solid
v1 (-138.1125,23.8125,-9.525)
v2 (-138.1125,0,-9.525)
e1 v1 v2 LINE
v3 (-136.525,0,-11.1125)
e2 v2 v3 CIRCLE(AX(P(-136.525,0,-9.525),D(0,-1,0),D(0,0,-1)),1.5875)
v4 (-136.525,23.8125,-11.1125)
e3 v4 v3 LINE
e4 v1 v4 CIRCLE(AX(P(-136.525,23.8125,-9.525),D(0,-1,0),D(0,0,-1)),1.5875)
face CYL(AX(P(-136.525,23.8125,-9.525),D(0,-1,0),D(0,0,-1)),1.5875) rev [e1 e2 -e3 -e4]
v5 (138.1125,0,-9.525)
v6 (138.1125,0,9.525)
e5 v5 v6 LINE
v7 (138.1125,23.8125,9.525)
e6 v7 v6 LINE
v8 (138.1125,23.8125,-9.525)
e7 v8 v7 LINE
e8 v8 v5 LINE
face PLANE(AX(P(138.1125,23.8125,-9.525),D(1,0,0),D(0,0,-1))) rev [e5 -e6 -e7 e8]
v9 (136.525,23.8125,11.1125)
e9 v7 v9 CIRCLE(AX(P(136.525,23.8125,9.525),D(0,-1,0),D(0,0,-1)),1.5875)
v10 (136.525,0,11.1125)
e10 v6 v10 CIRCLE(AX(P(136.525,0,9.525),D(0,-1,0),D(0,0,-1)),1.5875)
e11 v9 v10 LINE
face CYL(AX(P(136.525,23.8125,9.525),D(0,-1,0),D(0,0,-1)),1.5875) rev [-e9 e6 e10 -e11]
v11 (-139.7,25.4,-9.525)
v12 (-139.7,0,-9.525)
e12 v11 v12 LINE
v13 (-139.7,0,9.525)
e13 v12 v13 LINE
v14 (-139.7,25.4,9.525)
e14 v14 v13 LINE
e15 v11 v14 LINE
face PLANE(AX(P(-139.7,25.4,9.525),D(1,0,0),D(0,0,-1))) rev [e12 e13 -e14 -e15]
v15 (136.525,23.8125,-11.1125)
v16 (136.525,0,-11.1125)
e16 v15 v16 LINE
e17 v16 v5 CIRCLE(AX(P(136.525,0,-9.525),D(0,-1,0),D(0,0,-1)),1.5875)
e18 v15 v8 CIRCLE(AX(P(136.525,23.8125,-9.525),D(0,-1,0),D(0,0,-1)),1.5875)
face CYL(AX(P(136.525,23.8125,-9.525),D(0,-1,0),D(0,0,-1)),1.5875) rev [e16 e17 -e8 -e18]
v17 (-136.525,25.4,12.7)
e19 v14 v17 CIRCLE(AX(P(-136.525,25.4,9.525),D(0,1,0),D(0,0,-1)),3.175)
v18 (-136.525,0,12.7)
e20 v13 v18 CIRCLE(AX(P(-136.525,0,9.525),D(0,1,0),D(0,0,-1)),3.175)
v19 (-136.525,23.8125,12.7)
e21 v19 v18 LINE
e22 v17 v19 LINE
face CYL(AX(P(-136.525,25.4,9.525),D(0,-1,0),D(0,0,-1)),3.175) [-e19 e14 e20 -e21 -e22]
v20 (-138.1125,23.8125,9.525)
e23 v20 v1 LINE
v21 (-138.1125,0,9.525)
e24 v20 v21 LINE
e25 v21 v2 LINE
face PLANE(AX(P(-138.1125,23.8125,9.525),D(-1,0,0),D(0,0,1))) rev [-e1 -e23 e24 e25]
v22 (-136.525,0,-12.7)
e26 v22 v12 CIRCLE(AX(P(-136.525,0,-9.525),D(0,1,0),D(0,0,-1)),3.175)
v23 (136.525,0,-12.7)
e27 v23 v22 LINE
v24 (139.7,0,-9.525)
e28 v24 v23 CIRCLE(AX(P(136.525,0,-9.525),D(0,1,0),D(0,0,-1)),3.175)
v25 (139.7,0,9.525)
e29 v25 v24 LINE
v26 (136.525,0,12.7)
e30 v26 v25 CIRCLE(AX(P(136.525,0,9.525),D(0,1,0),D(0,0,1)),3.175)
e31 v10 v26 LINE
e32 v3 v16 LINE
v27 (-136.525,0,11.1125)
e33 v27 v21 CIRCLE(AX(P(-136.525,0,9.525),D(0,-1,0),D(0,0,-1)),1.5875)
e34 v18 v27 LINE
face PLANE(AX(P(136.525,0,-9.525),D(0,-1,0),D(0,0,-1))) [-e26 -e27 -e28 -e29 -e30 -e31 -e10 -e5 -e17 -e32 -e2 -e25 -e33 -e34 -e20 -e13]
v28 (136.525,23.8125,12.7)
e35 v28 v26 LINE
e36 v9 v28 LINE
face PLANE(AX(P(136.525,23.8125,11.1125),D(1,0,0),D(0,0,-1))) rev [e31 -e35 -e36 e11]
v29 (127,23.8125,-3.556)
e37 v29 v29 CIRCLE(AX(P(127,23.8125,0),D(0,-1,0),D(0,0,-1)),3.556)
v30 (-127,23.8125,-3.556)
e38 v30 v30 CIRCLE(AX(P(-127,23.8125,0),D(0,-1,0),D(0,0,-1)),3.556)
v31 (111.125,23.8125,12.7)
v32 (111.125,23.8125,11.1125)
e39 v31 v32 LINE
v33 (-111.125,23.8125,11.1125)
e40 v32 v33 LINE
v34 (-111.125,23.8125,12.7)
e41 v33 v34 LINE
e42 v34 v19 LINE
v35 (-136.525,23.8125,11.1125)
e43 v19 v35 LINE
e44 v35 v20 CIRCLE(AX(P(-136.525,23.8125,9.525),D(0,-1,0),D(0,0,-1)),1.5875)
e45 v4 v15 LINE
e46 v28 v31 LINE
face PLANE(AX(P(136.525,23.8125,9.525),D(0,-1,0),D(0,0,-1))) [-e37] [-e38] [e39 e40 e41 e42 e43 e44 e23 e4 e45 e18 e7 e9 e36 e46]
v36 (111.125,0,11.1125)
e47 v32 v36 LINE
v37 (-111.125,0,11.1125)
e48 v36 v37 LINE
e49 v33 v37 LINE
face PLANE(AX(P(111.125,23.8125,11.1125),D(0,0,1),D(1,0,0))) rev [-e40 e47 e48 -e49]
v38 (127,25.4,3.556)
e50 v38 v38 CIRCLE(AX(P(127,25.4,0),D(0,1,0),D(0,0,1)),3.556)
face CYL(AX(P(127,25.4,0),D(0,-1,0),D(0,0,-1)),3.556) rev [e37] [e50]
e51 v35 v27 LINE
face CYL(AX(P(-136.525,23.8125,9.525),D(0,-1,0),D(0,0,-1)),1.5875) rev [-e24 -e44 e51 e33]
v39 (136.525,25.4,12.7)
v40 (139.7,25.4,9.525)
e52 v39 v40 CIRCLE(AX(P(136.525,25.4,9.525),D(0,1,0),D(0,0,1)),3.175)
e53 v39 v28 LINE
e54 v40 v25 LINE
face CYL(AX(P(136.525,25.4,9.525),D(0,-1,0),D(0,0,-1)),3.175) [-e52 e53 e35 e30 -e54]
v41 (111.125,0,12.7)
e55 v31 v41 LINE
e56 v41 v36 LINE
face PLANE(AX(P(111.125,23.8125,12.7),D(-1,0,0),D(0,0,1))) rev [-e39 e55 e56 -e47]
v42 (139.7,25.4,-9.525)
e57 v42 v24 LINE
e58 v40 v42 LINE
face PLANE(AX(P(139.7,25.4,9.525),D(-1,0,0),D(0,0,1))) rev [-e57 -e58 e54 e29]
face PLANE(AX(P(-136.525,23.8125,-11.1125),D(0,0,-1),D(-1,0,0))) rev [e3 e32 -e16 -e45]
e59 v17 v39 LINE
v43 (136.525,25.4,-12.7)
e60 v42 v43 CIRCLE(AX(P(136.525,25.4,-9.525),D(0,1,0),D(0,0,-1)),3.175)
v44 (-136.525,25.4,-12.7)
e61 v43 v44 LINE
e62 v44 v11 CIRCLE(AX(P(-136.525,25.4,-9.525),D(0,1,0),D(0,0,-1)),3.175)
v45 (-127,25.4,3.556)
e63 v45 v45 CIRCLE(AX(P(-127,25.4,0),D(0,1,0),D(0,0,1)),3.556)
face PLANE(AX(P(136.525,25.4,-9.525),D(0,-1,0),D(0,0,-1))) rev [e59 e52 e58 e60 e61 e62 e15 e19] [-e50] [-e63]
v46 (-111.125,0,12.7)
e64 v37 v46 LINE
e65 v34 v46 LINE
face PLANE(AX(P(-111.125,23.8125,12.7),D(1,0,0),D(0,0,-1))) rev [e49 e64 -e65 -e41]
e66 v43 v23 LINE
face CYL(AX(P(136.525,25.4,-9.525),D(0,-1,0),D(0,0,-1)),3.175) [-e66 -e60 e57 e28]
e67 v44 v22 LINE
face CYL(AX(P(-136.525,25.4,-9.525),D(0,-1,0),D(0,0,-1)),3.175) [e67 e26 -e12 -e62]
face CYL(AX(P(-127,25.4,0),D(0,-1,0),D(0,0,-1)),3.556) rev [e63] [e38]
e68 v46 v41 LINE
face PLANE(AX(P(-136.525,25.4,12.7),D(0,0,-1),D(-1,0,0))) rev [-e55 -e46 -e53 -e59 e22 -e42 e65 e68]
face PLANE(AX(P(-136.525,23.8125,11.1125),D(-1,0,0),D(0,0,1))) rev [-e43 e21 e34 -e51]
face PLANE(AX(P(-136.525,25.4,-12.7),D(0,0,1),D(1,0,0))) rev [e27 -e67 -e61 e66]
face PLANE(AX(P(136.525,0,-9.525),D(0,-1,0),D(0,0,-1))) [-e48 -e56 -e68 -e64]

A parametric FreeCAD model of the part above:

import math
import FreeCAD as App
import Part
import Sketcher

V = App.Vector
Q = App.Units.Quantity

doc = App.newDocument("Part")
body = doc.addObject("PartDesign::Body", "Body")

# Sketch on XZ plane
sketch1 = body.newObject("Sketcher::SketchObject", "Sketch")
sketch1.AttachmentSupport = (doc.getObject("XZ_Plane"), [""])
sketch1.MapMode = "FlatFace"
sketch1.addGeometry([
    Part.LineSegment(V(-136.525, 12.7, 0), V(136.525, 12.7, 0)),  # 0
    Part.ArcOfCircle(Part.Circle(V(136.525, 9.525, 0), V(0, 0, 1), 3.175), math.radians(0), math.radians(90)),  # 1
    Part.LineSegment(V(139.7, 9.525, 0), V(139.7, -9.525, 0)),  # 2
    Part.ArcOfCircle(Part.Circle(V(136.525, -9.525, 0), V(0, 0, 1), 3.175), math.radians(-90), math.radians(0)),  # 3
    Part.LineSegment(V(136.525, -12.7, 0), V(-136.525, -12.7, 0)),  # 4
    Part.ArcOfCircle(Part.Circle(V(-136.525, -9.525, 0), V(0, 0, 1), 3.175), math.radians(-180), math.radians(-90)),  # 5
    Part.LineSegment(V(-139.7, -9.525, 0), V(-139.7, 9.525, 0)),  # 6
    Part.ArcOfCircle(Part.Circle(V(-136.525, 9.525, 0), V(0, 0, 1), 3.175), math.radians(90), math.radians(180)),  # 7
    Part.Circle(V(-127, 0, 0), V(0, 0, 1), 3.556),  # 8
    Part.Circle(V(127, 0, 0), V(0, 0, 1), 3.556),  # 9
], False)
sketch1.addConstraint([
    Sketcher.Constraint("Tangent", 0, 2, 1, 2),
    Sketcher.Constraint("Tangent", 1, 1, 2, 1),
    Sketcher.Constraint("Tangent", 2, 2, 3, 2),
    Sketcher.Constraint("Tangent", 3, 1, 4, 1),
    Sketcher.Constraint("Tangent", 4, 2, 5, 2),
    Sketcher.Constraint("Tangent", 5, 1, 6, 1),
    Sketcher.Constraint("Tangent", 6, 2, 7, 2),
    Sketcher.Constraint("Tangent", 7, 1, 0, 1),
    Sketcher.Constraint("Horizontal", 0),
    Sketcher.Constraint("Vertical", 2),
    Sketcher.Constraint("Horizontal", 4),
    Sketcher.Constraint("Vertical", 6),
    Sketcher.Constraint("Equal", 1, 3),
    Sketcher.Constraint("Equal", 3, 5),
    Sketcher.Constraint("Equal", 5, 7),
    Sketcher.Constraint("Equal", 8, 9),
    Sketcher.Constraint("Symmetric", 1, 3, 5, 3, -1, 1),
    Sketcher.Constraint("Symmetric", 8, 3, 9, 3, -1, 1),
    Sketcher.Constraint("PointOnObject", 8, 3, -1),
    Sketcher.Constraint("Diameter", 8, Q("0.28 in")),
    Sketcher.Constraint("DistanceX", 8, 3, -1, 1, Q("5 in")),
    Sketcher.Constraint("Radius", 1, Q("0.125 in")),
    Sketcher.Constraint("DistanceX", 0, 1, 0, 2, Q("10.75 in")),
    Sketcher.Constraint("DistanceY", 2, 2, 2, 1, Q("0.75 in")),
])
pad1 = body.newObject("PartDesign::Pad", "Pad")
pad1.Profile = sketch1
pad1.Length = Q("1 in")
pad1.Reversed = True

# Sketch on XZ plane
sketch2 = body.newObject("Sketcher::SketchObject", "Sketch001")
sketch2.AttachmentSupport = (doc.getObject("XZ_Plane"), [""])
sketch2.MapMode = "FlatFace"
sketch2.addGeometry([
    Part.LineSegment(V(-136.525, 12.7, 0), V(-136.525, 11.1125, 0)),  # 0
    Part.ArcOfCircle(Part.Circle(V(-136.525, 9.525, 0), V(0, 0, 1), 1.5875), math.radians(90), math.radians(180)),  # 1
    Part.LineSegment(V(-138.1125, 9.525, 0), V(-138.1125, -9.525, 0)),  # 2
    Part.ArcOfCircle(Part.Circle(V(-136.525, -9.525, 0), V(0, 0, 1), 1.5875), math.radians(180), math.radians(270)),  # 3
    Part.LineSegment(V(-136.525, -11.1125, 0), V(136.525, -11.1125, 0)),  # 4
    Part.ArcOfCircle(Part.Circle(V(136.525, -9.525, 0), V(0, 0, 1), 1.5875), math.radians(-90), math.radians(0)),  # 5
    Part.LineSegment(V(138.1125, -9.525, 0), V(138.1125, 9.525, 0)),  # 6
    Part.ArcOfCircle(Part.Circle(V(136.525, 9.525, 0), V(0, 0, 1), 1.5875), math.radians(0), math.radians(90)),  # 7
    Part.LineSegment(V(136.525, 11.1125, 0), V(136.525, 12.7, 0)),  # 8
    Part.LineSegment(V(136.525, 12.7, 0), V(111.125, 12.7, 0)),  # 9
    Part.LineSegment(V(111.125, 12.7, 0), V(111.125, 11.1125, 0)),  # 10
    Part.LineSegment(V(111.125, 11.1125, 0), V(-111.125, 11.1125, 0)),  # 11
    Part.LineSegment(V(-111.125, 11.1125, 0), V(-111.125, 12.7, 0)),  # 12
    Part.LineSegment(V(-111.125, 12.7, 0), V(-136.525, 12.7, 0)),  # 13
], False)
sketch2.addConstraint([
    Sketcher.Constraint("Coincident", 0, 2, 1, 1),
    Sketcher.Constraint("Tangent", 1, 2, 2, 1),
    Sketcher.Constraint("Tangent", 2, 2, 3, 1),
    Sketcher.Constraint("Tangent", 3, 2, 4, 1),
    Sketcher.Constraint("Tangent", 4, 2, 5, 1),
    Sketcher.Constraint("Tangent", 5, 2, 6, 1),
    Sketcher.Constraint("Tangent", 6, 2, 7, 1),
    Sketcher.Constraint("Coincident", 7, 2, 8, 1),
    Sketcher.Constraint("Coincident", 8, 2, 9, 1),
    Sketcher.Constraint("Coincident", 9, 2, 10, 1),
    Sketcher.Constraint("Coincident", 10, 2, 11, 1),
    Sketcher.Constraint("Coincident", 11, 2, 12, 1),
    Sketcher.Constraint("Coincident", 12, 2, 13, 1),
    Sketcher.Constraint("Coincident", 13, 2, 0, 1),
    Sketcher.Constraint("Vertical", 0),
    Sketcher.Constraint("Vertical", 2),
    Sketcher.Constraint("Horizontal", 4),
    Sketcher.Constraint("Vertical", 6),
    Sketcher.Constraint("Vertical", 8),
    Sketcher.Constraint("Horizontal", 9),
    Sketcher.Constraint("Vertical", 10),
    Sketcher.Constraint("Horizontal", 11),
    Sketcher.Constraint("Vertical", 12),
    Sketcher.Constraint("Horizontal", 13),
    Sketcher.Constraint("Equal", 1, 3),
    Sketcher.Constraint("Equal", 3, 5),
    Sketcher.Constraint("Equal", 5, 7),
    Sketcher.Constraint("Symmetric", 1, 3, 5, 3, -1, 1),
    Sketcher.Constraint("Symmetric", 3, 2, 7, 2, -1, 1),
    Sketcher.Constraint("Symmetric", 9, 2, 12, 2, -2),
    Sketcher.Constraint("Horizontal", 7, 2, 10, 2),
    Sketcher.Constraint("Vertical", 3, 3, 0, 2),
    Sketcher.Constraint("DistanceX", 9, 2, 9, 1, Q("1 in")),
    Sketcher.Constraint("Radius", 1, Q("0.0625 in")),
    Sketcher.Constraint("DistanceX", 4, 1, 4, 2, Q("10.75 in")),
    Sketcher.Constraint("DistanceY", 2, 2, 2, 1, Q("0.75 in")),
    Sketcher.Constraint("DistanceY", -1, 1, 8, 2, Q("0.5 in")),
])
pocket1 = body.newObject("PartDesign::Pocket", "Pocket")
pocket1.Profile = sketch2
pocket1.Length = Q("0.9375 in")

doc.recompute()
